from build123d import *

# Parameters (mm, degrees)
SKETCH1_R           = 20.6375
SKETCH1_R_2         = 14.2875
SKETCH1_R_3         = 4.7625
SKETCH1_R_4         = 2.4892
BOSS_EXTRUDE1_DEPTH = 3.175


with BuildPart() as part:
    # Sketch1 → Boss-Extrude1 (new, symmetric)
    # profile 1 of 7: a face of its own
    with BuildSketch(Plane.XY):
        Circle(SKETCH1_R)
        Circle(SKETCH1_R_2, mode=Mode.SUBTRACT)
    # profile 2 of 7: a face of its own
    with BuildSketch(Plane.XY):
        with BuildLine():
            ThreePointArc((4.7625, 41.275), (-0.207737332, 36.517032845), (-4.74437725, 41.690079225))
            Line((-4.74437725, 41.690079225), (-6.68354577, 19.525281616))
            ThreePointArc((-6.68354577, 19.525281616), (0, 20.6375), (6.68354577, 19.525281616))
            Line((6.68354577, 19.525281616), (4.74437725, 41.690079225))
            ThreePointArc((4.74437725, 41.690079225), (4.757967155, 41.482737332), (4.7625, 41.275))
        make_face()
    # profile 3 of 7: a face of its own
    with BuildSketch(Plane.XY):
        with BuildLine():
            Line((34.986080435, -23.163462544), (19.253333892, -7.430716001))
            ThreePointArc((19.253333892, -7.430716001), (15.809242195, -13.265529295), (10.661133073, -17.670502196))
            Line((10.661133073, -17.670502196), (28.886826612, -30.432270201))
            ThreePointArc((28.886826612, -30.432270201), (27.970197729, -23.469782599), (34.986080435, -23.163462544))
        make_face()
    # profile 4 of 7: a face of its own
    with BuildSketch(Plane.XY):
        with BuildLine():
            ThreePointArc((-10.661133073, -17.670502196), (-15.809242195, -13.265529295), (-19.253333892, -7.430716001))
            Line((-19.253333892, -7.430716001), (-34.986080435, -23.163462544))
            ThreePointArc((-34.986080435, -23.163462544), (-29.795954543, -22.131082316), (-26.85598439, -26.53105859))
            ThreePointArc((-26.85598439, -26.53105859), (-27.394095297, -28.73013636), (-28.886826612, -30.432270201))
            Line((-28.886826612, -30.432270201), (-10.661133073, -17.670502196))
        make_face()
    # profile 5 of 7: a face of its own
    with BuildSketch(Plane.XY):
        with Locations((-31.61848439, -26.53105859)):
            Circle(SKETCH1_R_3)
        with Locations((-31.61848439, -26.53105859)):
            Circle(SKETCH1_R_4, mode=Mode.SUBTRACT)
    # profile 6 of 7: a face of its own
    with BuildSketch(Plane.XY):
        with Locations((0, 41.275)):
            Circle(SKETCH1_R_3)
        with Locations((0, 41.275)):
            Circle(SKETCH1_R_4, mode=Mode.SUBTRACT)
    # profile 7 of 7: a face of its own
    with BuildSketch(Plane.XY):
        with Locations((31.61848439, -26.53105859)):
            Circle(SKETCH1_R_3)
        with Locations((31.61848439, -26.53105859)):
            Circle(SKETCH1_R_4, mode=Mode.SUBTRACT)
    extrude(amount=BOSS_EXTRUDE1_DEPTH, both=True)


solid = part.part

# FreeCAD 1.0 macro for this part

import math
import FreeCAD as App
import Part
import Sketcher
Q = App.Units.Quantity

doc = App.newDocument("Part")
params = doc.addObject("Spreadsheet::Sheet", "Params")
for row, (alias, value) in enumerate([
    ("sketch1_diameter", "1.125 in"),
    ("sketch1_diameter2", "0.196 in"),
    ("sketch1_radius", "0.1875 in"),
    ("sketch1_radius2", "0.8125 in"),
    ("pad1_length", "0.25 in"),
], start=1):
    params.set(f"A{row}", alias)
    params.set(f"B{row}", "=" + value)
    params.setAlias(f"B{row}", alias)

body = doc.addObject("PartDesign::Body", "Body")

# Sketch on XY plane
sketch1 = doc.addObject("Sketcher::SketchObject", "Sketch")
body.addObject(sketch1)
sketch1.AttachmentSupport = (doc.XY_Plane, [""])
sketch1.MapMode = "FlatFace"
sketch1.addGeometry([
    Part.LineSegment(App.Vector(6.7, 19.5, 0), App.Vector(4.7, 41.7, 0)),  # 0
    Part.ArcOfCircle(Part.Circle(App.Vector(0, 41.3, 0), App.Vector(0, 0, 1), 4.8), math.radians(5), math.radians(175)),  # 1
    Part.LineSegment(App.Vector(-4.7, 41.7, 0), App.Vector(-6.7, 19.5, 0)),  # 2
    Part.ArcOfCircle(Part.Circle(App.Vector(0, 0, 0), App.Vector(0, 0, 1), 20.6), math.radians(109), math.radians(201)),  # 3
    Part.LineSegment(App.Vector(-19.3, -7.4, 0), App.Vector(-35, -23.2, 0)),  # 4
    Part.ArcOfCircle(Part.Circle(App.Vector(-31.6, -26.5, 0), App.Vector(0, 0, 1), 4.8), math.radians(135), math.radians(305)),  # 5
    Part.LineSegment(App.Vector(-28.9, -30.4, 0), App.Vector(-10.7, -17.7, 0)),  # 6
    Part.ArcOfCircle(Part.Circle(App.Vector(0, 0, 0), App.Vector(0, 0, 1), 20.6), math.radians(-121), math.radians(-59)),  # 7
    Part.LineSegment(App.Vector(10.7, -17.7, 0), App.Vector(28.9, -30.4, 0)),  # 8
    Part.ArcOfCircle(Part.Circle(App.Vector(31.6, -26.5, 0), App.Vector(0, 0, 1), 4.8), math.radians(-125), math.radians(45)),  # 9
    Part.LineSegment(App.Vector(35, -23.2, 0), App.Vector(19.3, -7.4, 0)),  # 10
    Part.ArcOfCircle(Part.Circle(App.Vector(0, 0, 0), App.Vector(0, 0, 1), 20.6), math.radians(-21), math.radians(71)),  # 11
    Part.Circle(App.Vector(0, 0, 0), App.Vector(0, 0, 1), 14.3),  # 12
    Part.Circle(App.Vector(0, 41.3, 0), App.Vector(0, 0, 1), 2.5),  # 13
    Part.Circle(App.Vector(-31.6, -26.5, 0), App.Vector(0, 0, 1), 2.5),  # 14
    Part.Circle(App.Vector(31.6, -26.5, 0), App.Vector(0, 0, 1), 2.5),  # 15
], False)
sketch1.addConstraint([
    Sketcher.Constraint("Tangent", 0, 2, 1, 1),
    Sketcher.Constraint("Tangent", 1, 2, 2, 1),
    Sketcher.Constraint("Coincident", 2, 2, 3, 1),
    Sketcher.Constraint("Coincident", 3, 2, 4, 1),
    Sketcher.Constraint("Tangent", 4, 2, 5, 1),
    Sketcher.Constraint("Tangent", 5, 2, 6, 1),
    Sketcher.Constraint("Coincident", 6, 2, 7, 1),
    Sketcher.Constraint("Coincident", 7, 2, 8, 1),
    Sketcher.Constraint("Tangent", 8, 2, 9, 1),
    Sketcher.Constraint("Tangent", 9, 2, 10, 1),
    Sketcher.Constraint("Coincident", 10, 2, 11, 1),
    Sketcher.Constraint("Coincident", 11, 2, 0, 1),
    Sketcher.Constraint("Coincident", 3, 3, -1, 1),
    Sketcher.Constraint("Coincident", 7, 3, -1, 1),
    Sketcher.Constraint("Coincident", 11, 3, -1, 1),
    Sketcher.Constraint("Coincident", 12, 3, -1, 1),
    Sketcher.Constraint("Coincident", 13, 3, 1, 3),
    Sketcher.Constraint("Coincident", 14, 3, 5, 3),
    Sketcher.Constraint("Coincident", 15, 3, 9, 3),
    Sketcher.Constraint("Equal", 1, 5),
    Sketcher.Constraint("Equal", 3, 7),
    Sketcher.Constraint("Equal", 5, 9),
    Sketcher.Constraint("Equal", 7, 11),
    Sketcher.Constraint("Equal", 13, 14),
    Sketcher.Constraint("Equal", 14, 15),
    Sketcher.Constraint("Symmetric", 5, 3, 9, 3, -2),
    Sketcher.Constraint("Symmetric", 0, 2, 1, 2, -2),
    Sketcher.Constraint("Perpendicular", 4, 10),
    Sketcher.Constraint("Horizontal", 6, 2, 7, 2),
    Sketcher.Constraint("Horizontal", 4, 2, 9, 2),
    Sketcher.Constraint("Equal", 2, 4),
    Sketcher.Constraint("Equal", 4, 6),
    Sketcher.Constraint("Diameter", 12, Q("1.125 in")),
    Sketcher.Constraint("Diameter", 13, Q("0.196 in")),
    Sketcher.Constraint("Angle", 0, Q("95 deg")),
    Sketcher.Constraint("Angle", 6, Q("35 deg")),
    Sketcher.Constraint("Radius", 1, Q("0.1875 in")),
    Sketcher.Constraint("Radius", 3, Q("0.8125 in")),
    Sketcher.Constraint("DistanceY", -1, 1, 1, 3, Q("1.625 in")),
])
sketch1.setExpression("Constraints[32]", "Params.sketch1_diameter")
sketch1.setExpression("Constraints[33]", "Params.sketch1_diameter2")
sketch1.setExpression("Constraints[36]", "Params.sketch1_radius")
sketch1.setExpression("Constraints[37]", "Params.sketch1_radius2")
pad1 = doc.addObject("PartDesign::Pad", "Pad")
body.addObject(pad1)
pad1.Profile = sketch1
pad1.setExpression("Length", "Params.pad1_length")
pad1.Midplane = True

doc.recompute()
